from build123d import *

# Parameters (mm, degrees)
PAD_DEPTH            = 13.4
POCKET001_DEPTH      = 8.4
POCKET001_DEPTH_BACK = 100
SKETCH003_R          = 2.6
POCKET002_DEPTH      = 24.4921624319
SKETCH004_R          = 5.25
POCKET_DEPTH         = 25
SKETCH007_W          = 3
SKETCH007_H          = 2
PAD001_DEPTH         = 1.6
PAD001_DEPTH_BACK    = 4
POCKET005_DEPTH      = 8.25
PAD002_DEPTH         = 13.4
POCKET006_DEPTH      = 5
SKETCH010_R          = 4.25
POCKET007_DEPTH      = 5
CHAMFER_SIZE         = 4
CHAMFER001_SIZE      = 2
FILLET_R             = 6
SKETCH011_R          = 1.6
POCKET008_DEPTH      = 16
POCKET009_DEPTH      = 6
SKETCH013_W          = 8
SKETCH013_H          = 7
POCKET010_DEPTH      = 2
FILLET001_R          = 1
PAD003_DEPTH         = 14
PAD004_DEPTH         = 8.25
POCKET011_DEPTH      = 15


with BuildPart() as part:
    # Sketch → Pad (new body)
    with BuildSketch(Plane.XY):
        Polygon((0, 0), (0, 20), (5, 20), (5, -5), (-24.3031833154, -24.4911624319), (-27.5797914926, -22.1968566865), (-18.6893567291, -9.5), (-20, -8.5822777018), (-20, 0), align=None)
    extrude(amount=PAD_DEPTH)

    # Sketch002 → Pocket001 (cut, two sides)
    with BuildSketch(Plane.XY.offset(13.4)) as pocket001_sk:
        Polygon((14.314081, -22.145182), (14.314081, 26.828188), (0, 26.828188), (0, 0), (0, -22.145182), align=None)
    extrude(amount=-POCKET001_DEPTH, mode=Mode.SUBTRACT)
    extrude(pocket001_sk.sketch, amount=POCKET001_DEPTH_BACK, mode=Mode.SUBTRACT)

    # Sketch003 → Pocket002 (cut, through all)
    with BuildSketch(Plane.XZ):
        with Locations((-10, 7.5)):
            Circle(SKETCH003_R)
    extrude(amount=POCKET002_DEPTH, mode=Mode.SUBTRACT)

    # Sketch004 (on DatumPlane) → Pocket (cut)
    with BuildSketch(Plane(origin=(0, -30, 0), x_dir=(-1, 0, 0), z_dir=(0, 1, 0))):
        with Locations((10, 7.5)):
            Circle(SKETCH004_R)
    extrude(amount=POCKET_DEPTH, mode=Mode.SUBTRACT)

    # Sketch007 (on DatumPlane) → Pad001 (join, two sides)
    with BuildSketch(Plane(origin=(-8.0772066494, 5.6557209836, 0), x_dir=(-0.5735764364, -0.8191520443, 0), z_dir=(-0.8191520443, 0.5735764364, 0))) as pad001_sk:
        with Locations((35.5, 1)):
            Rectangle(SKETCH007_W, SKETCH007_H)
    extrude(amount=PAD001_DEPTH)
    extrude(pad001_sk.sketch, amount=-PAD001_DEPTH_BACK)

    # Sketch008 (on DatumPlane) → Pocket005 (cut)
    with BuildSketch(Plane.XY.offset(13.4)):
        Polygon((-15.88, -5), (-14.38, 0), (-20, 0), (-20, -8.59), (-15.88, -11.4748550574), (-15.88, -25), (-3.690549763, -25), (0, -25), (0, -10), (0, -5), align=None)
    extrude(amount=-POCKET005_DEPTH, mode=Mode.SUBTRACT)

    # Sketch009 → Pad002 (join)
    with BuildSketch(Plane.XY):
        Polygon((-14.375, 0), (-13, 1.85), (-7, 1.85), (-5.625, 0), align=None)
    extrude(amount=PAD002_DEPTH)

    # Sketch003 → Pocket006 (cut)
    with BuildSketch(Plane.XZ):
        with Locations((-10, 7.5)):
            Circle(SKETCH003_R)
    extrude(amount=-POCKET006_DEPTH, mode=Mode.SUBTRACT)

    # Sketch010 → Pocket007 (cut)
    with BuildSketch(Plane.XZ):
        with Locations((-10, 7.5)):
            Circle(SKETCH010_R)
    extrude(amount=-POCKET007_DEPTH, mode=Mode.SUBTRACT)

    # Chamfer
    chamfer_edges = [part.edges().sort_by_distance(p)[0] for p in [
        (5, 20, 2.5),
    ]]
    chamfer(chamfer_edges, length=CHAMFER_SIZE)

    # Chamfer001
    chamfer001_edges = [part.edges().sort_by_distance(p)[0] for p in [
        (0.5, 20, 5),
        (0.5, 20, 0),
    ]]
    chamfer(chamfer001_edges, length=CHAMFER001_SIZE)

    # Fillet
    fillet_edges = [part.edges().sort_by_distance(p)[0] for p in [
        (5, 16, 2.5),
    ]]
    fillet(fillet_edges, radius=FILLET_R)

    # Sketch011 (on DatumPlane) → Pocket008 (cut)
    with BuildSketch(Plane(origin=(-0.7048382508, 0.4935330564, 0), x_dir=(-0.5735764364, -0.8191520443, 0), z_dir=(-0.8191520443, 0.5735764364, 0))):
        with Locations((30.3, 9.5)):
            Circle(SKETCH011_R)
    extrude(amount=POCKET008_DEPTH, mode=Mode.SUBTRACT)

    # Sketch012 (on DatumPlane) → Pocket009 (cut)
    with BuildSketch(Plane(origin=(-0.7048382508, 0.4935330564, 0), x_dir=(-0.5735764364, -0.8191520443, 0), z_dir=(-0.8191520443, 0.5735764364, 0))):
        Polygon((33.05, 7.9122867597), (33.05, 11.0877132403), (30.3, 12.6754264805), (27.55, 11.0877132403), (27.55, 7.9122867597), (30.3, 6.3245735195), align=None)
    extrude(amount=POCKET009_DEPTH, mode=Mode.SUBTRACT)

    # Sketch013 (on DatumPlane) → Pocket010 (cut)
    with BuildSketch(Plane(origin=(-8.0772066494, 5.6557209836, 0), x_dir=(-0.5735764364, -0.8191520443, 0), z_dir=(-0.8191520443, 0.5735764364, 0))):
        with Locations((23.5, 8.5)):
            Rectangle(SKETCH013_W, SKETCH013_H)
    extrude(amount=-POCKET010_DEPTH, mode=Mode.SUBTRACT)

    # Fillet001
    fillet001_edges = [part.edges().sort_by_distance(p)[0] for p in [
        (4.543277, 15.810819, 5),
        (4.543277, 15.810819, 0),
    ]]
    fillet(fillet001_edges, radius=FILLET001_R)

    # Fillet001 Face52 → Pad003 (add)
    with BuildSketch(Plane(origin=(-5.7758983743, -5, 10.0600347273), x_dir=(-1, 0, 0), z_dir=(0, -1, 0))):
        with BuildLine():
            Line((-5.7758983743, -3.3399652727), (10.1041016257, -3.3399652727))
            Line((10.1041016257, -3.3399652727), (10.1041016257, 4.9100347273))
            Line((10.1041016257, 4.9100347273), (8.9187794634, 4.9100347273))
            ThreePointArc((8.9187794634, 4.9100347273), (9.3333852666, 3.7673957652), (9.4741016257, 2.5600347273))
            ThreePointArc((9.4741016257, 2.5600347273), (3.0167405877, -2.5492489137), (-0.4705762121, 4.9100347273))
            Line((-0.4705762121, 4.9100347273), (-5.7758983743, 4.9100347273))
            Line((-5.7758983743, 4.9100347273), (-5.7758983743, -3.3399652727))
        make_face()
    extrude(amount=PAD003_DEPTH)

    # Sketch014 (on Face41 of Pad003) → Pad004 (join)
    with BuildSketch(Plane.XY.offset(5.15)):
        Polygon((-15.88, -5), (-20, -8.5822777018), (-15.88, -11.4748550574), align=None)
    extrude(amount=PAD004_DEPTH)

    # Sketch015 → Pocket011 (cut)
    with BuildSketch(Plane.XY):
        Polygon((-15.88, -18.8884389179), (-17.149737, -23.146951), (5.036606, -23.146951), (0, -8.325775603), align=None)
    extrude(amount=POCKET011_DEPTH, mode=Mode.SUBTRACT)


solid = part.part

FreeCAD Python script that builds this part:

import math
import FreeCAD as App
import Part
import Sketcher
from FreeCAD import Vector
Q = App.Units.Quantity


def edges_at(feature, points):
    """Names of the edges that pass closest to the given points."""
    edges = feature.Shape.Edges
    near = lambda p: min(range(len(edges)), key=lambda i: edges[i].distToShape(Part.Vertex(*p))[0])
    return sorted({f"Edge{near(p) + 1}" for p in points})

doc = App.newDocument("Part")
body = doc.addObject("PartDesign::Body", "Body")

sketch1 = body.newObject("Sketcher::SketchObject", "Sketch")
sketch1.AttachmentSupport = (doc.getObject("XY_Plane"), [""])
sketch1.MapMode = "FlatFace"
sketch1.addGeometry([
    Part.LineSegment(Vector(0, 20, 0), Vector(0, 0, 0)),
    Part.LineSegment(Vector(0, 0, 0), Vector(-20, 0, 0)),
    Part.LineSegment(Vector(-20, 0, 0), Vector(-20, -8.582278, 0)),
    Part.LineSegment(Vector(-20, -8.582278, 0), Vector(-18.689357, -9.5, 0)),
    Part.LineSegment(Vector(-18.689357, -9.5, 0), Vector(-27.579791, -22.196857, 0)),
    Part.LineSegment(Vector(-27.579791, -22.196857, 0), Vector(-24.303183, -24.491162, 0)),
    Part.LineSegment(Vector(-24.303183, -24.491162, 0), Vector(5, -5, 0)),
    Part.LineSegment(Vector(5, -5, 0), Vector(5, 20, 0)),
    Part.LineSegment(Vector(5, 20, 0), Vector(0, 20, 0)),
], False)
sketch1.addConstraint([
    Sketcher.Constraint("Coincident", 0, 2, 1, 1),
    Sketcher.Constraint("Coincident", 1, 2, 2, 1),
    Sketcher.Constraint("Coincident", 2, 2, 3, 1),
    Sketcher.Constraint("Coincident", 3, 2, 4, 1),
    Sketcher.Constraint("Coincident", 4, 2, 5, 1),
    Sketcher.Constraint("Coincident", 5, 2, 6, 1),
    Sketcher.Constraint("Coincident", 6, 2, 7, 1),
    Sketcher.Constraint("Coincident", 7, 2, 8, 1),
    Sketcher.Constraint("Coincident", 8, 2, 0, 1),
    Sketcher.Constraint("Vertical", 0),
    Sketcher.Constraint("Horizontal", 1),
    Sketcher.Constraint("Vertical", 2),
    Sketcher.Constraint("Vertical", 7),
    Sketcher.Constraint("Horizontal", 8),
    Sketcher.Constraint("Coincident", 0, 2, -1, 1),
    Sketcher.Constraint("Perpendicular", 3, 4),
    Sketcher.Constraint("Perpendicular", 4, 5),
    Sketcher.Constraint("Equal", 1, 0),
    Sketcher.Constraint("DistanceX", 1, 2, 1, 1, 20.0),
    Sketcher.Constraint("DistanceX", 8, 2, 8, 1, 5.0),
    Sketcher.Constraint("DistanceY", 7, 1, 7, 2, 25.0),
    Sketcher.Constraint("Angle", 3, Q("-35 deg")),
    Sketcher.Constraint("Distance", 5, 4.0),
    Sketcher.Constraint("Distance", 3, 1.6),
    Sketcher.Constraint("Distance", 4, 15.5),
    Sketcher.Constraint("DistanceY", 3, 2, -1, 1, 9.5),
])
pad1 = body.newObject("PartDesign::Pad", "Pad")
pad1.Profile = sketch1
pad1.Length = 13.4

sketch2 = body.newObject("Sketcher::SketchObject", "Sketch001")
sketch2.AttachmentSupport = (doc.getObject("XY_Plane"), [""])
sketch2.MapMode = "FlatFace"
sketch2.AttachmentOffset = App.Placement(Vector(0, 0, 13.4), App.Rotation())
sketch2.addGeometry([
    Part.LineSegment(Vector(14.314081, -22.145182, 0), Vector(14.314081, 26.828188, 0)),
    Part.LineSegment(Vector(14.314081, 26.828188, 0), Vector(0, 26.828188, 0)),
    Part.LineSegment(Vector(0, 26.828188, 0), Vector(0, -22.145182, 0)),
    Part.LineSegment(Vector(0, -22.145182, 0), Vector(14.314081, -22.145182, 0)),
], False)
sketch2.addConstraint([
    Sketcher.Constraint("Coincident", 0, 2, 1, 1),
    Sketcher.Constraint("Coincident", 1, 2, 2, 1),
    Sketcher.Constraint("Coincident", 2, 2, 3, 1),
    Sketcher.Constraint("Coincident", 3, 2, 0, 1),
    Sketcher.Constraint("Vertical", 0),
    Sketcher.Constraint("Horizontal", 1),
    Sketcher.Constraint("Vertical", 2),
    Sketcher.Constraint("Horizontal", 3),
    Sketcher.Constraint("PointOnObject", 1, 2, -2),
    Sketcher.Constraint("DistanceX", 1, 2, 1, 1, 14.314081),
    Sketcher.Constraint("DistanceY", 0, 1, 0, 2, 48.97337),
    Sketcher.Constraint("DistanceY", -1, 1, 0, 2, 26.828188),
])
pocket1 = body.newObject("PartDesign::Pocket", "Pocket")
pocket1.Profile = sketch2
pocket1.Type = "TwoLengths"
pocket1.Length = 8.4
pocket1.Length2 = 100

sketch3 = body.newObject("Sketcher::SketchObject", "Sketch002")
sketch3.AttachmentSupport = (doc.getObject("XZ_Plane"), [""])
sketch3.MapMode = "FlatFace"
sketch3.addGeometry(Part.Circle(Vector(-10, 7.5, 0), Vector(0, 0, 1), 2.6), False)
sketch3.addConstraint([
    Sketcher.Constraint("Diameter", 0, 5.2),
    Sketcher.Constraint("DistanceX", 0, 3, -1, 1, 10.0),
    Sketcher.Constraint("DistanceY", -1, 1, 0, 3, 7.5),
])
pocket2 = body.newObject("PartDesign::Pocket", "Pocket001")
pocket2.Profile = sketch3
pocket2.Type = "ThroughAll"
pocket2.Reversed = True

sketch4 = body.newObject("Sketcher::SketchObject", "Sketch003")
sketch4.AttachmentSupport = (doc.getObject("XZ_Plane"), [""])
sketch4.MapMode = "FlatFace"
sketch4.AttachmentOffset = App.Placement(Vector(0, 0, 30), App.Rotation())
sketch4.addGeometry(Part.Circle(Vector(-10, 7.5, 0), Vector(0, 0, 1), 5.25), False)
sketch4.addConstraint([
    Sketcher.Constraint("Diameter", 0, 10.5),
    Sketcher.Constraint("DistanceX", 0, 3, -1, 1, 10.0),
    Sketcher.Constraint("DistanceY", -1, 1, 0, 3, 7.5),
])
pocket3 = body.newObject("PartDesign::Pocket", "Pocket002")
pocket3.Profile = sketch4
pocket3.Length = 25

sketch5 = body.newObject("Sketcher::SketchObject", "Sketch004")
sketch5.Placement = App.Placement(Vector(-8.077207, 5.655721, 0), App.Rotation(Vector(-0.573576436, -0.819152044, 0), Vector(0, 0, 0.999999999), Vector(-0.819152044, 0.573576436, 0), "ZXY"))
sketch5.addGeometry([
    Part.LineSegment(Vector(34, 2, 0), Vector(34, 0, 0)),
    Part.LineSegment(Vector(34, 0, 0), Vector(37, 0, 0)),
    Part.LineSegment(Vector(37, 0, 0), Vector(37, 2, 0)),
    Part.LineSegment(Vector(37, 2, 0), Vector(34, 2, 0)),
], False)
sketch5.addConstraint([
    Sketcher.Constraint("Coincident", 0, 2, 1, 1),
    Sketcher.Constraint("Coincident", 1, 2, 2, 1),
    Sketcher.Constraint("Coincident", 2, 2, 3, 1),
    Sketcher.Constraint("Coincident", 3, 2, 0, 1),
    Sketcher.Constraint("Vertical", 0),
    Sketcher.Constraint("Horizontal", 1),
    Sketcher.Constraint("Vertical", 2),
    Sketcher.Constraint("Horizontal", 3),
    Sketcher.Constraint("PointOnObject", 0, 2, -1),
    Sketcher.Constraint("DistanceX", 1, 1, 1, 2, 3.0),
    Sketcher.Constraint("DistanceY", 0, 2, 0, 1, 2.0),
    Sketcher.Constraint("DistanceX", -1, 1, 0, 2, 34.0),
])
pad2 = body.newObject("PartDesign::Pad", "Pad001")
pad2.Profile = sketch5
pad2.Type = "TwoLengths"
pad2.Length = 1.6
pad2.Length2 = 4

sketch6 = body.newObject("Sketcher::SketchObject", "Sketch005")
sketch6.AttachmentSupport = (doc.getObject("XY_Plane"), [""])
sketch6.MapMode = "FlatFace"
sketch6.AttachmentOffset = App.Placement(Vector(0, 0, 13.4), App.Rotation())
sketch6.addGeometry([
    Part.LineSegment(Vector(-15.88, -5, 0), Vector(-14.38, 0, 0)),
    Part.LineSegment(Vector(-14.38, 0, 0), Vector(-20, 0, 0)),
    Part.LineSegment(Vector(-20, 0, 0), Vector(-20, -8.59, 0)),
    Part.LineSegment(Vector(-20, -8.59, 0), Vector(-15.88, -11.474855, 0)),
    Part.LineSegment(Vector(-15.88, -11.474855, 0), Vector(-15.88, -25, 0)),
    Part.LineSegment(Vector(-15.88, -25, 0), Vector(0, -25, 0)),
    Part.LineSegment(Vector(0, -25, 0), Vector(0, -5, 0)),
    Part.LineSegment(Vector(0, -5, 0), Vector(-15.88, -5, 0)),
], False)
sketch6.addConstraint([
    Sketcher.Constraint("Coincident", 0, 2, 1, 1),
    Sketcher.Constraint("Coincident", 1, 2, 2, 1),
    Sketcher.Constraint("Coincident", 2, 2, 3, 1),
    Sketcher.Constraint("Coincident", 3, 2, 4, 1),
    Sketcher.Constraint("Coincident", 4, 2, 5, 1),
    Sketcher.Constraint("Coincident", 5, 2, 6, 1),
    Sketcher.Constraint("Coincident", 6, 2, 7, 1),
    Sketcher.Constraint("Coincident", 7, 2, 0, 1),
    Sketcher.Constraint("Horizontal", 1),
    Sketcher.Constraint("Vertical", 2),
    Sketcher.Constraint("Vertical", 4),
    Sketcher.Constraint("Horizontal", 5),
    Sketcher.Constraint("Vertical", 6),
    Sketcher.Constraint("Horizontal", 7),
    Sketcher.Constraint("PointOnObject", 0, 2, -1),
    Sketcher.Constraint("PointOnObject", 5, 2, -2),
    Sketcher.Constraint("Vertical", 4, 2, 7, 2),
    Sketcher.Constraint("DistanceY", 6, 1, 6, 2, 20.0),
    Sketcher.Constraint("Angle", 3, Q("-35 deg")),
    Sketcher.Constraint("DistanceX", 1, 2, -1, 1, 20.0),
    Sketcher.Constraint("DistanceY", 4, 2, -1, 1, 25.0),
    Sketcher.Constraint("DistanceX", 1, 2, 1, 1, 5.62),
    Sketcher.Constraint("DistanceX", 5, 1, 5, 2, 15.88),
    Sketcher.Constraint("DistanceY", 2, 2, 2, 1, 8.59),
])
pocket4 = body.newObject("PartDesign::Pocket", "Pocket003")
pocket4.Profile = sketch6
pocket4.Length = 8.25

sketch7 = body.newObject("Sketcher::SketchObject", "Sketch006")
sketch7.AttachmentSupport = (doc.getObject("XY_Plane"), [""])
sketch7.MapMode = "FlatFace"
sketch7.addGeometry([
    Part.LineSegment(Vector(-13, 1.85, 0), Vector(-14.375, 0, 0)),
    Part.LineSegment(Vector(-14.375, 0, 0), Vector(-5.625, 0, 0)),
    Part.LineSegment(Vector(-5.625, 0, 0), Vector(-7, 1.85, 0)),
    Part.LineSegment(Vector(-7, 1.85, 0), Vector(-13, 1.85, 0)),
], False)
sketch7.addConstraint([
    Sketcher.Constraint("Coincident", 0, 2, 1, 1),
    Sketcher.Constraint("Coincident", 1, 2, 2, 1),
    Sketcher.Constraint("Coincident", 2, 2, 3, 1),
    Sketcher.Constraint("Coincident", 3, 2, 0, 1),
    Sketcher.Constraint("Horizontal", 1),
    Sketcher.Constraint("Horizontal", 3),
    Sketcher.Constraint("PointOnObject", 0, 2, -1),
    Sketcher.Constraint("Equal", 0, 2),
    Sketcher.Constraint("DistanceX", 3, 2, 3, 1, 6.0),
    Sketcher.Constraint("DistanceX", 2, 2, -1, 1, 7.0),
    Sketcher.Constraint("DistanceX", 1, 1, 1, 2, 8.75),
    Sketcher.Constraint("DistanceY", -1, 1, 2, 2, 1.85),
])
pad3 = body.newObject("PartDesign::Pad", "Pad002")
pad3.Profile = sketch7
pad3.Length = 13.4

sketch8 = body.newObject("Sketcher::SketchObject", "Sketch007")
sketch8.AttachmentSupport = (doc.getObject("XZ_Plane"), [""])
sketch8.MapMode = "FlatFace"
sketch8.addGeometry(Part.Circle(Vector(-10, 7.5, 0), Vector(0, 0, 1), 2.6), False)
sketch8.addConstraint([
    Sketcher.Constraint("Diameter", 0, 5.2),
    Sketcher.Constraint("DistanceX", 0, 3, -1, 1, 10.0),
    Sketcher.Constraint("DistanceY", -1, 1, 0, 3, 7.5),
])
pocket5 = body.newObject("PartDesign::Pocket", "Pocket004")
pocket5.Profile = sketch8
pocket5.Length = 5

sketch9 = body.newObject("Sketcher::SketchObject", "Sketch008")
sketch9.AttachmentSupport = (doc.getObject("XZ_Plane"), [""])
sketch9.MapMode = "FlatFace"
sketch9.addGeometry(Part.Circle(Vector(-10, 7.5, 0), Vector(0, 0, 1), 4.25), False)
sketch9.addConstraint([
    Sketcher.Constraint("Diameter", 0, 8.5),
    Sketcher.Constraint("DistanceX", 0, 3, -1, 1, 10.0),
    Sketcher.Constraint("DistanceY", -1, 1, 0, 3, 7.5),
])
pocket6 = body.newObject("PartDesign::Pocket", "Pocket005")
pocket6.Profile = sketch9
pocket6.Length = 5
doc.recompute()

chamfer = body.newObject("PartDesign::Chamfer", "Chamfer")
chamfer.Base = (pocket6, edges_at(pocket6, [(5, 20, 2.5)]))
chamfer.Size = 4
doc.recompute()

chamfer2 = body.newObject("PartDesign::Chamfer", "Chamfer001")
chamfer2.Base = (chamfer, edges_at(chamfer, [(0.5, 20, 5), (0.5, 20, 0)]))
chamfer2.Size = 2
doc.recompute()

fillet = body.newObject("PartDesign::Fillet", "Fillet")
fillet.Base = (chamfer2, edges_at(chamfer2, [(5, 16, 2.5)]))
fillet.Radius = 6

sketch10 = body.newObject("Sketcher::SketchObject", "Sketch009")
sketch10.Placement = App.Placement(Vector(-0.704838, 0.493533, 0), App.Rotation(Vector(-0.573576436, -0.819152044, 0), Vector(0, 0, 0.999999999), Vector(-0.819152044, 0.573576436, 0), "ZXY"))
sketch10.addGeometry(Part.Circle(Vector(30.3, 9.5, 0), Vector(0, 0, 1), 1.6), False)
sketch10.addConstraint([
    Sketcher.Constraint("Diameter", 0, 3.2),
    Sketcher.Constraint("DistanceX", -1, 1, 0, 3, 30.3),
    Sketcher.Constraint("DistanceY", -1, 1, 0, 3, 9.5),
])
pocket7 = body.newObject("PartDesign::Pocket", "Pocket006")
pocket7.Profile = sketch10
pocket7.Length = 16
pocket7.Reversed = True

sketch11 = body.newObject("Sketcher::SketchObject", "Sketch010")
sketch11.Placement = App.Placement(Vector(-0.704838, 0.493533, 0), App.Rotation(Vector(-0.573576436, -0.819152044, 0), Vector(0, 0, 0.999999999), Vector(-0.819152044, 0.573576436, 0), "ZXY"))
sketch11.addGeometry([
    Part.LineSegment(Vector(33.05, 7.912287, 0), Vector(33.05, 11.087713, 0)),
    Part.LineSegment(Vector(33.05, 11.087713, 0), Vector(30.3, 12.675426, 0)),
    Part.LineSegment(Vector(30.3, 12.675426, 0), Vector(27.55, 11.087713, 0)),
    Part.LineSegment(Vector(27.55, 11.087713, 0), Vector(27.55, 7.912287, 0)),
    Part.LineSegment(Vector(27.55, 7.912287, 0), Vector(30.3, 6.324574, 0)),
    Part.LineSegment(Vector(30.3, 6.324574, 0), Vector(33.05, 7.912287, 0)),
], False)
sketch11.addConstraint([
    Sketcher.Constraint("Coincident", 0, 2, 1, 1),
    Sketcher.Constraint("Coincident", 1, 2, 2, 1),
    Sketcher.Constraint("Coincident", 2, 2, 3, 1),
    Sketcher.Constraint("Coincident", 3, 2, 4, 1),
    Sketcher.Constraint("Coincident", 4, 2, 5, 1),
    Sketcher.Constraint("Coincident", 5, 2, 0, 1),
    Sketcher.Constraint("Vertical", 0),
    Sketcher.Constraint("Vertical", 3),
    Sketcher.Constraint("Parallel", 1, 4),
    Sketcher.Constraint("Parallel", 2, 5),
    Sketcher.Constraint("Horizontal", 0, 2, 2, 2),
    Sketcher.Constraint("Horizontal", 3, 2, 5, 2),
    Sketcher.Constraint("Vertical", 1, 2, 4, 2),
    Sketcher.Constraint("Angle", 1, Q("150 deg")),
    Sketcher.Constraint("DistanceX", -1, 1, 1, 2, 30.3),
    Sketcher.Constraint("DistanceX", 2, 2, 0, 2, 5.5),
    Sketcher.Constraint("DistanceY", 0, 1, 0, 2, 3.175426),
    Sketcher.Constraint("DistanceY", -1, 1, 0, 2, 11.087713),
])
pocket8 = body.newObject("PartDesign::Pocket", "Pocket007")
pocket8.Profile = sketch11
pocket8.Length = 6
pocket8.Reversed = True

sketch12 = body.newObject("Sketcher::SketchObject", "Sketch011")
sketch12.Placement = App.Placement(Vector(-8.077207, 5.655721, 0), App.Rotation(Vector(-0.573576436, -0.819152044, 0), Vector(0, 0, 0.999999999), Vector(-0.819152044, 0.573576436, 0), "ZXY"))
sketch12.addGeometry([
    Part.LineSegment(Vector(19.5, 12, 0), Vector(19.5, 5, 0)),
    Part.LineSegment(Vector(19.5, 5, 0), Vector(27.5, 5, 0)),
    Part.LineSegment(Vector(27.5, 5, 0), Vector(27.5, 12, 0)),
    Part.LineSegment(Vector(27.5, 12, 0), Vector(19.5, 12, 0)),
], False)
sketch12.addConstraint([
    Sketcher.Constraint("Coincident", 0, 2, 1, 1),
    Sketcher.Constraint("Coincident", 1, 2, 2, 1),
    Sketcher.Constraint("Coincident", 2, 2, 3, 1),
    Sketcher.Constraint("Coincident", 3, 2, 0, 1),
    Sketcher.Constraint("Vertical", 0),
    Sketcher.Constraint("Horizontal", 1),
    Sketcher.Constraint("Vertical", 2),
    Sketcher.Constraint("Horizontal", 3),
    Sketcher.Constraint("DistanceX", 1, 1, 1, 2, 8.0),
    Sketcher.Constraint("DistanceY", 0, 2, 0, 1, 7.0),
    Sketcher.Constraint("DistanceY", -1, 1, 0, 2, 5.0),
    Sketcher.Constraint("DistanceX", -1, 1, 0, 2, 19.5),
])
pocket9 = body.newObject("PartDesign::Pocket", "Pocket008")
pocket9.Profile = sketch12
pocket9.Length = 2
doc.recompute()

fillet2 = body.newObject("PartDesign::Fillet", "Fillet001")
fillet2.Base = (pocket9, edges_at(pocket9, [(4.543, 15.811, 5), (4.543, 15.811, 0)]))
fillet2.Radius = 1

sketch13 = body.newObject("Sketcher::SketchObject", "Sketch012")
sketch13.AttachmentSupport = (doc.getObject("XZ_Plane"), [""])
sketch13.MapMode = "FlatFace"
sketch13.AttachmentOffset = App.Placement(Vector(0, 0, 5), App.Rotation())
sketch13.addGeometry([
    Part.LineSegment(Vector(0, 13.4, 0), Vector(-15.88, 13.4, 0)),
    Part.LineSegment(Vector(-15.88, 13.4, 0), Vector(-15.88, 5.15, 0)),
    Part.LineSegment(Vector(-15.88, 5.15, 0), Vector(-14.694678, 5.15, 0)),
    Part.ArcOfCircle(Part.Circle(Vector(-10, 7.5, 0), Vector(0, 0, 1), 5.25), math.radians(180), math.radians(206.591027)),
    Part.ArcOfCircle(Part.Circle(Vector(-10, 7.5, 0), Vector(0, 0, 1), 5.25), math.radians(-26.591027), math.radians(180)),
    Part.LineSegment(Vector(-5.305322, 5.15, 0), Vector(0, 5.15, 0)),
    Part.LineSegment(Vector(0, 5.15, 0), Vector(0, 13.4, 0)),
], False)
sketch13.addConstraint([
    Sketcher.Constraint("Coincident", 0, 2, 1, 1),
    Sketcher.Constraint("Coincident", 1, 2, 2, 1),
    Sketcher.Constraint("Coincident", 2, 2, 3, 2),
    Sketcher.Constraint("Tangent", 3, 1, 4, 2),
    Sketcher.Constraint("Coincident", 4, 1, 5, 1),
    Sketcher.Constraint("Coincident", 5, 2, 6, 1),
    Sketcher.Constraint("Coincident", 6, 2, 0, 1),
    Sketcher.Constraint("Horizontal", 0),
    Sketcher.Constraint("Vertical", 1),
    Sketcher.Constraint("Horizontal", 2),
    Sketcher.Constraint("Horizontal", 5),
    Sketcher.Constraint("Vertical", 6),
    Sketcher.Constraint("Equal", 3, 4),
    Sketcher.Constraint("PointOnObject", 5, 2, -2),
    Sketcher.Constraint("Horizontal", 4, 3, 3, 1),
    Sketcher.Constraint("Horizontal", 2, 2, 4, 1),
    Sketcher.Constraint("Radius", 3, 5.25),
    Sketcher.Constraint("DistanceX", 3, 3, -1, 1, 10.0),
    Sketcher.Constraint("DistanceX", 0, 2, 0, 1, 15.88),
    Sketcher.Constraint("DistanceY", 1, 2, 1, 1, 8.25),
    Sketcher.Constraint("DistanceY", -1, 1, 3, 3, 7.5),
    Sketcher.Constraint("DistanceY", -1, 1, 0, 2, 13.4),
])
pad4 = body.newObject("PartDesign::Pad", "Pad003")
pad4.Profile = sketch13
pad4.Length = 14

sketch14 = body.newObject("Sketcher::SketchObject", "Sketch013")
sketch14.AttachmentSupport = (doc.getObject("XY_Plane"), [""])
sketch14.MapMode = "FlatFace"
sketch14.AttachmentOffset = App.Placement(Vector(0, 0, 5.15), App.Rotation())
sketch14.addGeometry([
    Part.LineSegment(Vector(-15.88, -5, 0), Vector(-20, -8.582278, 0)),
    Part.LineSegment(Vector(-20, -8.582278, 0), Vector(-15.88, -11.474855, 0)),
    Part.LineSegment(Vector(-15.88, -11.474855, 0), Vector(-15.88, -5, 0)),
], False)
sketch14.addConstraint([
    Sketcher.Constraint("Coincident", 0, 2, 1, 1),
    Sketcher.Constraint("Coincident", 1, 2, 2, 1),
    Sketcher.Constraint("Coincident", 2, 2, 0, 1),
    Sketcher.Constraint("Vertical", 2),
    Sketcher.Constraint("DistanceX", 0, 2, -1, 1, 20.0),
    Sketcher.Constraint("DistanceY", 2, 2, -1, 1, 5.0),
    Sketcher.Constraint("DistanceX", 1, 2, -1, 1, 15.88),
    Sketcher.Constraint("Distance", 0, 5.459589),
    Sketcher.Constraint("DistanceY", 2, 1, 2, 2, 6.474855),
])
pad5 = body.newObject("PartDesign::Pad", "Pad004")
pad5.Profile = sketch14
pad5.Length = 8.25

sketch15 = body.newObject("Sketcher::SketchObject", "Sketch014")
sketch15.AttachmentSupport = (doc.getObject("XY_Plane"), [""])
sketch15.MapMode = "FlatFace"
sketch15.addGeometry([
    Part.LineSegment(Vector(-15.88, -18.888439, 0), Vector(-17.149737, -23.146951, 0)),
    Part.LineSegment(Vector(-17.149737, -23.146951, 0), Vector(5.036606, -23.146951, 0)),
    Part.LineSegment(Vector(5.036606, -23.146951, 0), Vector(0, -8.325776, 0)),
    Part.LineSegment(Vector(0, -8.325776, 0), Vector(-15.88, -18.888439, 0)),
], False)
sketch15.addConstraint([
    Sketcher.Constraint("Coincident", 0, 2, 1, 1),
    Sketcher.Constraint("Coincident", 1, 2, 2, 1),
    Sketcher.Constraint("Coincident", 2, 2, 3, 1),
    Sketcher.Constraint("Coincident", 3, 2, 0, 1),
    Sketcher.Constraint("Horizontal", 1),
    Sketcher.Constraint("PointOnObject", 2, 2, -2),
    Sketcher.Constraint("DistanceX", 3, 2, -1, 1, 15.88),
    Sketcher.Constraint("Distance", 3, 19.072081),
    Sketcher.Constraint("DistanceX", 1, 1, 1, 2, 22.186343),
    Sketcher.Constraint("DistanceY", 0, 2, -1, 1, 23.146951),
    Sketcher.Constraint("DistanceY", 3, 2, -1, 1, 18.888439),
    Sketcher.Constraint("Distance", 0, 4.443777),
])
pocket10 = body.newObject("PartDesign::Pocket", "Pocket009")
pocket10.Profile = sketch15
pocket10.Length = 15
pocket10.Reversed = True

doc.recompute()
